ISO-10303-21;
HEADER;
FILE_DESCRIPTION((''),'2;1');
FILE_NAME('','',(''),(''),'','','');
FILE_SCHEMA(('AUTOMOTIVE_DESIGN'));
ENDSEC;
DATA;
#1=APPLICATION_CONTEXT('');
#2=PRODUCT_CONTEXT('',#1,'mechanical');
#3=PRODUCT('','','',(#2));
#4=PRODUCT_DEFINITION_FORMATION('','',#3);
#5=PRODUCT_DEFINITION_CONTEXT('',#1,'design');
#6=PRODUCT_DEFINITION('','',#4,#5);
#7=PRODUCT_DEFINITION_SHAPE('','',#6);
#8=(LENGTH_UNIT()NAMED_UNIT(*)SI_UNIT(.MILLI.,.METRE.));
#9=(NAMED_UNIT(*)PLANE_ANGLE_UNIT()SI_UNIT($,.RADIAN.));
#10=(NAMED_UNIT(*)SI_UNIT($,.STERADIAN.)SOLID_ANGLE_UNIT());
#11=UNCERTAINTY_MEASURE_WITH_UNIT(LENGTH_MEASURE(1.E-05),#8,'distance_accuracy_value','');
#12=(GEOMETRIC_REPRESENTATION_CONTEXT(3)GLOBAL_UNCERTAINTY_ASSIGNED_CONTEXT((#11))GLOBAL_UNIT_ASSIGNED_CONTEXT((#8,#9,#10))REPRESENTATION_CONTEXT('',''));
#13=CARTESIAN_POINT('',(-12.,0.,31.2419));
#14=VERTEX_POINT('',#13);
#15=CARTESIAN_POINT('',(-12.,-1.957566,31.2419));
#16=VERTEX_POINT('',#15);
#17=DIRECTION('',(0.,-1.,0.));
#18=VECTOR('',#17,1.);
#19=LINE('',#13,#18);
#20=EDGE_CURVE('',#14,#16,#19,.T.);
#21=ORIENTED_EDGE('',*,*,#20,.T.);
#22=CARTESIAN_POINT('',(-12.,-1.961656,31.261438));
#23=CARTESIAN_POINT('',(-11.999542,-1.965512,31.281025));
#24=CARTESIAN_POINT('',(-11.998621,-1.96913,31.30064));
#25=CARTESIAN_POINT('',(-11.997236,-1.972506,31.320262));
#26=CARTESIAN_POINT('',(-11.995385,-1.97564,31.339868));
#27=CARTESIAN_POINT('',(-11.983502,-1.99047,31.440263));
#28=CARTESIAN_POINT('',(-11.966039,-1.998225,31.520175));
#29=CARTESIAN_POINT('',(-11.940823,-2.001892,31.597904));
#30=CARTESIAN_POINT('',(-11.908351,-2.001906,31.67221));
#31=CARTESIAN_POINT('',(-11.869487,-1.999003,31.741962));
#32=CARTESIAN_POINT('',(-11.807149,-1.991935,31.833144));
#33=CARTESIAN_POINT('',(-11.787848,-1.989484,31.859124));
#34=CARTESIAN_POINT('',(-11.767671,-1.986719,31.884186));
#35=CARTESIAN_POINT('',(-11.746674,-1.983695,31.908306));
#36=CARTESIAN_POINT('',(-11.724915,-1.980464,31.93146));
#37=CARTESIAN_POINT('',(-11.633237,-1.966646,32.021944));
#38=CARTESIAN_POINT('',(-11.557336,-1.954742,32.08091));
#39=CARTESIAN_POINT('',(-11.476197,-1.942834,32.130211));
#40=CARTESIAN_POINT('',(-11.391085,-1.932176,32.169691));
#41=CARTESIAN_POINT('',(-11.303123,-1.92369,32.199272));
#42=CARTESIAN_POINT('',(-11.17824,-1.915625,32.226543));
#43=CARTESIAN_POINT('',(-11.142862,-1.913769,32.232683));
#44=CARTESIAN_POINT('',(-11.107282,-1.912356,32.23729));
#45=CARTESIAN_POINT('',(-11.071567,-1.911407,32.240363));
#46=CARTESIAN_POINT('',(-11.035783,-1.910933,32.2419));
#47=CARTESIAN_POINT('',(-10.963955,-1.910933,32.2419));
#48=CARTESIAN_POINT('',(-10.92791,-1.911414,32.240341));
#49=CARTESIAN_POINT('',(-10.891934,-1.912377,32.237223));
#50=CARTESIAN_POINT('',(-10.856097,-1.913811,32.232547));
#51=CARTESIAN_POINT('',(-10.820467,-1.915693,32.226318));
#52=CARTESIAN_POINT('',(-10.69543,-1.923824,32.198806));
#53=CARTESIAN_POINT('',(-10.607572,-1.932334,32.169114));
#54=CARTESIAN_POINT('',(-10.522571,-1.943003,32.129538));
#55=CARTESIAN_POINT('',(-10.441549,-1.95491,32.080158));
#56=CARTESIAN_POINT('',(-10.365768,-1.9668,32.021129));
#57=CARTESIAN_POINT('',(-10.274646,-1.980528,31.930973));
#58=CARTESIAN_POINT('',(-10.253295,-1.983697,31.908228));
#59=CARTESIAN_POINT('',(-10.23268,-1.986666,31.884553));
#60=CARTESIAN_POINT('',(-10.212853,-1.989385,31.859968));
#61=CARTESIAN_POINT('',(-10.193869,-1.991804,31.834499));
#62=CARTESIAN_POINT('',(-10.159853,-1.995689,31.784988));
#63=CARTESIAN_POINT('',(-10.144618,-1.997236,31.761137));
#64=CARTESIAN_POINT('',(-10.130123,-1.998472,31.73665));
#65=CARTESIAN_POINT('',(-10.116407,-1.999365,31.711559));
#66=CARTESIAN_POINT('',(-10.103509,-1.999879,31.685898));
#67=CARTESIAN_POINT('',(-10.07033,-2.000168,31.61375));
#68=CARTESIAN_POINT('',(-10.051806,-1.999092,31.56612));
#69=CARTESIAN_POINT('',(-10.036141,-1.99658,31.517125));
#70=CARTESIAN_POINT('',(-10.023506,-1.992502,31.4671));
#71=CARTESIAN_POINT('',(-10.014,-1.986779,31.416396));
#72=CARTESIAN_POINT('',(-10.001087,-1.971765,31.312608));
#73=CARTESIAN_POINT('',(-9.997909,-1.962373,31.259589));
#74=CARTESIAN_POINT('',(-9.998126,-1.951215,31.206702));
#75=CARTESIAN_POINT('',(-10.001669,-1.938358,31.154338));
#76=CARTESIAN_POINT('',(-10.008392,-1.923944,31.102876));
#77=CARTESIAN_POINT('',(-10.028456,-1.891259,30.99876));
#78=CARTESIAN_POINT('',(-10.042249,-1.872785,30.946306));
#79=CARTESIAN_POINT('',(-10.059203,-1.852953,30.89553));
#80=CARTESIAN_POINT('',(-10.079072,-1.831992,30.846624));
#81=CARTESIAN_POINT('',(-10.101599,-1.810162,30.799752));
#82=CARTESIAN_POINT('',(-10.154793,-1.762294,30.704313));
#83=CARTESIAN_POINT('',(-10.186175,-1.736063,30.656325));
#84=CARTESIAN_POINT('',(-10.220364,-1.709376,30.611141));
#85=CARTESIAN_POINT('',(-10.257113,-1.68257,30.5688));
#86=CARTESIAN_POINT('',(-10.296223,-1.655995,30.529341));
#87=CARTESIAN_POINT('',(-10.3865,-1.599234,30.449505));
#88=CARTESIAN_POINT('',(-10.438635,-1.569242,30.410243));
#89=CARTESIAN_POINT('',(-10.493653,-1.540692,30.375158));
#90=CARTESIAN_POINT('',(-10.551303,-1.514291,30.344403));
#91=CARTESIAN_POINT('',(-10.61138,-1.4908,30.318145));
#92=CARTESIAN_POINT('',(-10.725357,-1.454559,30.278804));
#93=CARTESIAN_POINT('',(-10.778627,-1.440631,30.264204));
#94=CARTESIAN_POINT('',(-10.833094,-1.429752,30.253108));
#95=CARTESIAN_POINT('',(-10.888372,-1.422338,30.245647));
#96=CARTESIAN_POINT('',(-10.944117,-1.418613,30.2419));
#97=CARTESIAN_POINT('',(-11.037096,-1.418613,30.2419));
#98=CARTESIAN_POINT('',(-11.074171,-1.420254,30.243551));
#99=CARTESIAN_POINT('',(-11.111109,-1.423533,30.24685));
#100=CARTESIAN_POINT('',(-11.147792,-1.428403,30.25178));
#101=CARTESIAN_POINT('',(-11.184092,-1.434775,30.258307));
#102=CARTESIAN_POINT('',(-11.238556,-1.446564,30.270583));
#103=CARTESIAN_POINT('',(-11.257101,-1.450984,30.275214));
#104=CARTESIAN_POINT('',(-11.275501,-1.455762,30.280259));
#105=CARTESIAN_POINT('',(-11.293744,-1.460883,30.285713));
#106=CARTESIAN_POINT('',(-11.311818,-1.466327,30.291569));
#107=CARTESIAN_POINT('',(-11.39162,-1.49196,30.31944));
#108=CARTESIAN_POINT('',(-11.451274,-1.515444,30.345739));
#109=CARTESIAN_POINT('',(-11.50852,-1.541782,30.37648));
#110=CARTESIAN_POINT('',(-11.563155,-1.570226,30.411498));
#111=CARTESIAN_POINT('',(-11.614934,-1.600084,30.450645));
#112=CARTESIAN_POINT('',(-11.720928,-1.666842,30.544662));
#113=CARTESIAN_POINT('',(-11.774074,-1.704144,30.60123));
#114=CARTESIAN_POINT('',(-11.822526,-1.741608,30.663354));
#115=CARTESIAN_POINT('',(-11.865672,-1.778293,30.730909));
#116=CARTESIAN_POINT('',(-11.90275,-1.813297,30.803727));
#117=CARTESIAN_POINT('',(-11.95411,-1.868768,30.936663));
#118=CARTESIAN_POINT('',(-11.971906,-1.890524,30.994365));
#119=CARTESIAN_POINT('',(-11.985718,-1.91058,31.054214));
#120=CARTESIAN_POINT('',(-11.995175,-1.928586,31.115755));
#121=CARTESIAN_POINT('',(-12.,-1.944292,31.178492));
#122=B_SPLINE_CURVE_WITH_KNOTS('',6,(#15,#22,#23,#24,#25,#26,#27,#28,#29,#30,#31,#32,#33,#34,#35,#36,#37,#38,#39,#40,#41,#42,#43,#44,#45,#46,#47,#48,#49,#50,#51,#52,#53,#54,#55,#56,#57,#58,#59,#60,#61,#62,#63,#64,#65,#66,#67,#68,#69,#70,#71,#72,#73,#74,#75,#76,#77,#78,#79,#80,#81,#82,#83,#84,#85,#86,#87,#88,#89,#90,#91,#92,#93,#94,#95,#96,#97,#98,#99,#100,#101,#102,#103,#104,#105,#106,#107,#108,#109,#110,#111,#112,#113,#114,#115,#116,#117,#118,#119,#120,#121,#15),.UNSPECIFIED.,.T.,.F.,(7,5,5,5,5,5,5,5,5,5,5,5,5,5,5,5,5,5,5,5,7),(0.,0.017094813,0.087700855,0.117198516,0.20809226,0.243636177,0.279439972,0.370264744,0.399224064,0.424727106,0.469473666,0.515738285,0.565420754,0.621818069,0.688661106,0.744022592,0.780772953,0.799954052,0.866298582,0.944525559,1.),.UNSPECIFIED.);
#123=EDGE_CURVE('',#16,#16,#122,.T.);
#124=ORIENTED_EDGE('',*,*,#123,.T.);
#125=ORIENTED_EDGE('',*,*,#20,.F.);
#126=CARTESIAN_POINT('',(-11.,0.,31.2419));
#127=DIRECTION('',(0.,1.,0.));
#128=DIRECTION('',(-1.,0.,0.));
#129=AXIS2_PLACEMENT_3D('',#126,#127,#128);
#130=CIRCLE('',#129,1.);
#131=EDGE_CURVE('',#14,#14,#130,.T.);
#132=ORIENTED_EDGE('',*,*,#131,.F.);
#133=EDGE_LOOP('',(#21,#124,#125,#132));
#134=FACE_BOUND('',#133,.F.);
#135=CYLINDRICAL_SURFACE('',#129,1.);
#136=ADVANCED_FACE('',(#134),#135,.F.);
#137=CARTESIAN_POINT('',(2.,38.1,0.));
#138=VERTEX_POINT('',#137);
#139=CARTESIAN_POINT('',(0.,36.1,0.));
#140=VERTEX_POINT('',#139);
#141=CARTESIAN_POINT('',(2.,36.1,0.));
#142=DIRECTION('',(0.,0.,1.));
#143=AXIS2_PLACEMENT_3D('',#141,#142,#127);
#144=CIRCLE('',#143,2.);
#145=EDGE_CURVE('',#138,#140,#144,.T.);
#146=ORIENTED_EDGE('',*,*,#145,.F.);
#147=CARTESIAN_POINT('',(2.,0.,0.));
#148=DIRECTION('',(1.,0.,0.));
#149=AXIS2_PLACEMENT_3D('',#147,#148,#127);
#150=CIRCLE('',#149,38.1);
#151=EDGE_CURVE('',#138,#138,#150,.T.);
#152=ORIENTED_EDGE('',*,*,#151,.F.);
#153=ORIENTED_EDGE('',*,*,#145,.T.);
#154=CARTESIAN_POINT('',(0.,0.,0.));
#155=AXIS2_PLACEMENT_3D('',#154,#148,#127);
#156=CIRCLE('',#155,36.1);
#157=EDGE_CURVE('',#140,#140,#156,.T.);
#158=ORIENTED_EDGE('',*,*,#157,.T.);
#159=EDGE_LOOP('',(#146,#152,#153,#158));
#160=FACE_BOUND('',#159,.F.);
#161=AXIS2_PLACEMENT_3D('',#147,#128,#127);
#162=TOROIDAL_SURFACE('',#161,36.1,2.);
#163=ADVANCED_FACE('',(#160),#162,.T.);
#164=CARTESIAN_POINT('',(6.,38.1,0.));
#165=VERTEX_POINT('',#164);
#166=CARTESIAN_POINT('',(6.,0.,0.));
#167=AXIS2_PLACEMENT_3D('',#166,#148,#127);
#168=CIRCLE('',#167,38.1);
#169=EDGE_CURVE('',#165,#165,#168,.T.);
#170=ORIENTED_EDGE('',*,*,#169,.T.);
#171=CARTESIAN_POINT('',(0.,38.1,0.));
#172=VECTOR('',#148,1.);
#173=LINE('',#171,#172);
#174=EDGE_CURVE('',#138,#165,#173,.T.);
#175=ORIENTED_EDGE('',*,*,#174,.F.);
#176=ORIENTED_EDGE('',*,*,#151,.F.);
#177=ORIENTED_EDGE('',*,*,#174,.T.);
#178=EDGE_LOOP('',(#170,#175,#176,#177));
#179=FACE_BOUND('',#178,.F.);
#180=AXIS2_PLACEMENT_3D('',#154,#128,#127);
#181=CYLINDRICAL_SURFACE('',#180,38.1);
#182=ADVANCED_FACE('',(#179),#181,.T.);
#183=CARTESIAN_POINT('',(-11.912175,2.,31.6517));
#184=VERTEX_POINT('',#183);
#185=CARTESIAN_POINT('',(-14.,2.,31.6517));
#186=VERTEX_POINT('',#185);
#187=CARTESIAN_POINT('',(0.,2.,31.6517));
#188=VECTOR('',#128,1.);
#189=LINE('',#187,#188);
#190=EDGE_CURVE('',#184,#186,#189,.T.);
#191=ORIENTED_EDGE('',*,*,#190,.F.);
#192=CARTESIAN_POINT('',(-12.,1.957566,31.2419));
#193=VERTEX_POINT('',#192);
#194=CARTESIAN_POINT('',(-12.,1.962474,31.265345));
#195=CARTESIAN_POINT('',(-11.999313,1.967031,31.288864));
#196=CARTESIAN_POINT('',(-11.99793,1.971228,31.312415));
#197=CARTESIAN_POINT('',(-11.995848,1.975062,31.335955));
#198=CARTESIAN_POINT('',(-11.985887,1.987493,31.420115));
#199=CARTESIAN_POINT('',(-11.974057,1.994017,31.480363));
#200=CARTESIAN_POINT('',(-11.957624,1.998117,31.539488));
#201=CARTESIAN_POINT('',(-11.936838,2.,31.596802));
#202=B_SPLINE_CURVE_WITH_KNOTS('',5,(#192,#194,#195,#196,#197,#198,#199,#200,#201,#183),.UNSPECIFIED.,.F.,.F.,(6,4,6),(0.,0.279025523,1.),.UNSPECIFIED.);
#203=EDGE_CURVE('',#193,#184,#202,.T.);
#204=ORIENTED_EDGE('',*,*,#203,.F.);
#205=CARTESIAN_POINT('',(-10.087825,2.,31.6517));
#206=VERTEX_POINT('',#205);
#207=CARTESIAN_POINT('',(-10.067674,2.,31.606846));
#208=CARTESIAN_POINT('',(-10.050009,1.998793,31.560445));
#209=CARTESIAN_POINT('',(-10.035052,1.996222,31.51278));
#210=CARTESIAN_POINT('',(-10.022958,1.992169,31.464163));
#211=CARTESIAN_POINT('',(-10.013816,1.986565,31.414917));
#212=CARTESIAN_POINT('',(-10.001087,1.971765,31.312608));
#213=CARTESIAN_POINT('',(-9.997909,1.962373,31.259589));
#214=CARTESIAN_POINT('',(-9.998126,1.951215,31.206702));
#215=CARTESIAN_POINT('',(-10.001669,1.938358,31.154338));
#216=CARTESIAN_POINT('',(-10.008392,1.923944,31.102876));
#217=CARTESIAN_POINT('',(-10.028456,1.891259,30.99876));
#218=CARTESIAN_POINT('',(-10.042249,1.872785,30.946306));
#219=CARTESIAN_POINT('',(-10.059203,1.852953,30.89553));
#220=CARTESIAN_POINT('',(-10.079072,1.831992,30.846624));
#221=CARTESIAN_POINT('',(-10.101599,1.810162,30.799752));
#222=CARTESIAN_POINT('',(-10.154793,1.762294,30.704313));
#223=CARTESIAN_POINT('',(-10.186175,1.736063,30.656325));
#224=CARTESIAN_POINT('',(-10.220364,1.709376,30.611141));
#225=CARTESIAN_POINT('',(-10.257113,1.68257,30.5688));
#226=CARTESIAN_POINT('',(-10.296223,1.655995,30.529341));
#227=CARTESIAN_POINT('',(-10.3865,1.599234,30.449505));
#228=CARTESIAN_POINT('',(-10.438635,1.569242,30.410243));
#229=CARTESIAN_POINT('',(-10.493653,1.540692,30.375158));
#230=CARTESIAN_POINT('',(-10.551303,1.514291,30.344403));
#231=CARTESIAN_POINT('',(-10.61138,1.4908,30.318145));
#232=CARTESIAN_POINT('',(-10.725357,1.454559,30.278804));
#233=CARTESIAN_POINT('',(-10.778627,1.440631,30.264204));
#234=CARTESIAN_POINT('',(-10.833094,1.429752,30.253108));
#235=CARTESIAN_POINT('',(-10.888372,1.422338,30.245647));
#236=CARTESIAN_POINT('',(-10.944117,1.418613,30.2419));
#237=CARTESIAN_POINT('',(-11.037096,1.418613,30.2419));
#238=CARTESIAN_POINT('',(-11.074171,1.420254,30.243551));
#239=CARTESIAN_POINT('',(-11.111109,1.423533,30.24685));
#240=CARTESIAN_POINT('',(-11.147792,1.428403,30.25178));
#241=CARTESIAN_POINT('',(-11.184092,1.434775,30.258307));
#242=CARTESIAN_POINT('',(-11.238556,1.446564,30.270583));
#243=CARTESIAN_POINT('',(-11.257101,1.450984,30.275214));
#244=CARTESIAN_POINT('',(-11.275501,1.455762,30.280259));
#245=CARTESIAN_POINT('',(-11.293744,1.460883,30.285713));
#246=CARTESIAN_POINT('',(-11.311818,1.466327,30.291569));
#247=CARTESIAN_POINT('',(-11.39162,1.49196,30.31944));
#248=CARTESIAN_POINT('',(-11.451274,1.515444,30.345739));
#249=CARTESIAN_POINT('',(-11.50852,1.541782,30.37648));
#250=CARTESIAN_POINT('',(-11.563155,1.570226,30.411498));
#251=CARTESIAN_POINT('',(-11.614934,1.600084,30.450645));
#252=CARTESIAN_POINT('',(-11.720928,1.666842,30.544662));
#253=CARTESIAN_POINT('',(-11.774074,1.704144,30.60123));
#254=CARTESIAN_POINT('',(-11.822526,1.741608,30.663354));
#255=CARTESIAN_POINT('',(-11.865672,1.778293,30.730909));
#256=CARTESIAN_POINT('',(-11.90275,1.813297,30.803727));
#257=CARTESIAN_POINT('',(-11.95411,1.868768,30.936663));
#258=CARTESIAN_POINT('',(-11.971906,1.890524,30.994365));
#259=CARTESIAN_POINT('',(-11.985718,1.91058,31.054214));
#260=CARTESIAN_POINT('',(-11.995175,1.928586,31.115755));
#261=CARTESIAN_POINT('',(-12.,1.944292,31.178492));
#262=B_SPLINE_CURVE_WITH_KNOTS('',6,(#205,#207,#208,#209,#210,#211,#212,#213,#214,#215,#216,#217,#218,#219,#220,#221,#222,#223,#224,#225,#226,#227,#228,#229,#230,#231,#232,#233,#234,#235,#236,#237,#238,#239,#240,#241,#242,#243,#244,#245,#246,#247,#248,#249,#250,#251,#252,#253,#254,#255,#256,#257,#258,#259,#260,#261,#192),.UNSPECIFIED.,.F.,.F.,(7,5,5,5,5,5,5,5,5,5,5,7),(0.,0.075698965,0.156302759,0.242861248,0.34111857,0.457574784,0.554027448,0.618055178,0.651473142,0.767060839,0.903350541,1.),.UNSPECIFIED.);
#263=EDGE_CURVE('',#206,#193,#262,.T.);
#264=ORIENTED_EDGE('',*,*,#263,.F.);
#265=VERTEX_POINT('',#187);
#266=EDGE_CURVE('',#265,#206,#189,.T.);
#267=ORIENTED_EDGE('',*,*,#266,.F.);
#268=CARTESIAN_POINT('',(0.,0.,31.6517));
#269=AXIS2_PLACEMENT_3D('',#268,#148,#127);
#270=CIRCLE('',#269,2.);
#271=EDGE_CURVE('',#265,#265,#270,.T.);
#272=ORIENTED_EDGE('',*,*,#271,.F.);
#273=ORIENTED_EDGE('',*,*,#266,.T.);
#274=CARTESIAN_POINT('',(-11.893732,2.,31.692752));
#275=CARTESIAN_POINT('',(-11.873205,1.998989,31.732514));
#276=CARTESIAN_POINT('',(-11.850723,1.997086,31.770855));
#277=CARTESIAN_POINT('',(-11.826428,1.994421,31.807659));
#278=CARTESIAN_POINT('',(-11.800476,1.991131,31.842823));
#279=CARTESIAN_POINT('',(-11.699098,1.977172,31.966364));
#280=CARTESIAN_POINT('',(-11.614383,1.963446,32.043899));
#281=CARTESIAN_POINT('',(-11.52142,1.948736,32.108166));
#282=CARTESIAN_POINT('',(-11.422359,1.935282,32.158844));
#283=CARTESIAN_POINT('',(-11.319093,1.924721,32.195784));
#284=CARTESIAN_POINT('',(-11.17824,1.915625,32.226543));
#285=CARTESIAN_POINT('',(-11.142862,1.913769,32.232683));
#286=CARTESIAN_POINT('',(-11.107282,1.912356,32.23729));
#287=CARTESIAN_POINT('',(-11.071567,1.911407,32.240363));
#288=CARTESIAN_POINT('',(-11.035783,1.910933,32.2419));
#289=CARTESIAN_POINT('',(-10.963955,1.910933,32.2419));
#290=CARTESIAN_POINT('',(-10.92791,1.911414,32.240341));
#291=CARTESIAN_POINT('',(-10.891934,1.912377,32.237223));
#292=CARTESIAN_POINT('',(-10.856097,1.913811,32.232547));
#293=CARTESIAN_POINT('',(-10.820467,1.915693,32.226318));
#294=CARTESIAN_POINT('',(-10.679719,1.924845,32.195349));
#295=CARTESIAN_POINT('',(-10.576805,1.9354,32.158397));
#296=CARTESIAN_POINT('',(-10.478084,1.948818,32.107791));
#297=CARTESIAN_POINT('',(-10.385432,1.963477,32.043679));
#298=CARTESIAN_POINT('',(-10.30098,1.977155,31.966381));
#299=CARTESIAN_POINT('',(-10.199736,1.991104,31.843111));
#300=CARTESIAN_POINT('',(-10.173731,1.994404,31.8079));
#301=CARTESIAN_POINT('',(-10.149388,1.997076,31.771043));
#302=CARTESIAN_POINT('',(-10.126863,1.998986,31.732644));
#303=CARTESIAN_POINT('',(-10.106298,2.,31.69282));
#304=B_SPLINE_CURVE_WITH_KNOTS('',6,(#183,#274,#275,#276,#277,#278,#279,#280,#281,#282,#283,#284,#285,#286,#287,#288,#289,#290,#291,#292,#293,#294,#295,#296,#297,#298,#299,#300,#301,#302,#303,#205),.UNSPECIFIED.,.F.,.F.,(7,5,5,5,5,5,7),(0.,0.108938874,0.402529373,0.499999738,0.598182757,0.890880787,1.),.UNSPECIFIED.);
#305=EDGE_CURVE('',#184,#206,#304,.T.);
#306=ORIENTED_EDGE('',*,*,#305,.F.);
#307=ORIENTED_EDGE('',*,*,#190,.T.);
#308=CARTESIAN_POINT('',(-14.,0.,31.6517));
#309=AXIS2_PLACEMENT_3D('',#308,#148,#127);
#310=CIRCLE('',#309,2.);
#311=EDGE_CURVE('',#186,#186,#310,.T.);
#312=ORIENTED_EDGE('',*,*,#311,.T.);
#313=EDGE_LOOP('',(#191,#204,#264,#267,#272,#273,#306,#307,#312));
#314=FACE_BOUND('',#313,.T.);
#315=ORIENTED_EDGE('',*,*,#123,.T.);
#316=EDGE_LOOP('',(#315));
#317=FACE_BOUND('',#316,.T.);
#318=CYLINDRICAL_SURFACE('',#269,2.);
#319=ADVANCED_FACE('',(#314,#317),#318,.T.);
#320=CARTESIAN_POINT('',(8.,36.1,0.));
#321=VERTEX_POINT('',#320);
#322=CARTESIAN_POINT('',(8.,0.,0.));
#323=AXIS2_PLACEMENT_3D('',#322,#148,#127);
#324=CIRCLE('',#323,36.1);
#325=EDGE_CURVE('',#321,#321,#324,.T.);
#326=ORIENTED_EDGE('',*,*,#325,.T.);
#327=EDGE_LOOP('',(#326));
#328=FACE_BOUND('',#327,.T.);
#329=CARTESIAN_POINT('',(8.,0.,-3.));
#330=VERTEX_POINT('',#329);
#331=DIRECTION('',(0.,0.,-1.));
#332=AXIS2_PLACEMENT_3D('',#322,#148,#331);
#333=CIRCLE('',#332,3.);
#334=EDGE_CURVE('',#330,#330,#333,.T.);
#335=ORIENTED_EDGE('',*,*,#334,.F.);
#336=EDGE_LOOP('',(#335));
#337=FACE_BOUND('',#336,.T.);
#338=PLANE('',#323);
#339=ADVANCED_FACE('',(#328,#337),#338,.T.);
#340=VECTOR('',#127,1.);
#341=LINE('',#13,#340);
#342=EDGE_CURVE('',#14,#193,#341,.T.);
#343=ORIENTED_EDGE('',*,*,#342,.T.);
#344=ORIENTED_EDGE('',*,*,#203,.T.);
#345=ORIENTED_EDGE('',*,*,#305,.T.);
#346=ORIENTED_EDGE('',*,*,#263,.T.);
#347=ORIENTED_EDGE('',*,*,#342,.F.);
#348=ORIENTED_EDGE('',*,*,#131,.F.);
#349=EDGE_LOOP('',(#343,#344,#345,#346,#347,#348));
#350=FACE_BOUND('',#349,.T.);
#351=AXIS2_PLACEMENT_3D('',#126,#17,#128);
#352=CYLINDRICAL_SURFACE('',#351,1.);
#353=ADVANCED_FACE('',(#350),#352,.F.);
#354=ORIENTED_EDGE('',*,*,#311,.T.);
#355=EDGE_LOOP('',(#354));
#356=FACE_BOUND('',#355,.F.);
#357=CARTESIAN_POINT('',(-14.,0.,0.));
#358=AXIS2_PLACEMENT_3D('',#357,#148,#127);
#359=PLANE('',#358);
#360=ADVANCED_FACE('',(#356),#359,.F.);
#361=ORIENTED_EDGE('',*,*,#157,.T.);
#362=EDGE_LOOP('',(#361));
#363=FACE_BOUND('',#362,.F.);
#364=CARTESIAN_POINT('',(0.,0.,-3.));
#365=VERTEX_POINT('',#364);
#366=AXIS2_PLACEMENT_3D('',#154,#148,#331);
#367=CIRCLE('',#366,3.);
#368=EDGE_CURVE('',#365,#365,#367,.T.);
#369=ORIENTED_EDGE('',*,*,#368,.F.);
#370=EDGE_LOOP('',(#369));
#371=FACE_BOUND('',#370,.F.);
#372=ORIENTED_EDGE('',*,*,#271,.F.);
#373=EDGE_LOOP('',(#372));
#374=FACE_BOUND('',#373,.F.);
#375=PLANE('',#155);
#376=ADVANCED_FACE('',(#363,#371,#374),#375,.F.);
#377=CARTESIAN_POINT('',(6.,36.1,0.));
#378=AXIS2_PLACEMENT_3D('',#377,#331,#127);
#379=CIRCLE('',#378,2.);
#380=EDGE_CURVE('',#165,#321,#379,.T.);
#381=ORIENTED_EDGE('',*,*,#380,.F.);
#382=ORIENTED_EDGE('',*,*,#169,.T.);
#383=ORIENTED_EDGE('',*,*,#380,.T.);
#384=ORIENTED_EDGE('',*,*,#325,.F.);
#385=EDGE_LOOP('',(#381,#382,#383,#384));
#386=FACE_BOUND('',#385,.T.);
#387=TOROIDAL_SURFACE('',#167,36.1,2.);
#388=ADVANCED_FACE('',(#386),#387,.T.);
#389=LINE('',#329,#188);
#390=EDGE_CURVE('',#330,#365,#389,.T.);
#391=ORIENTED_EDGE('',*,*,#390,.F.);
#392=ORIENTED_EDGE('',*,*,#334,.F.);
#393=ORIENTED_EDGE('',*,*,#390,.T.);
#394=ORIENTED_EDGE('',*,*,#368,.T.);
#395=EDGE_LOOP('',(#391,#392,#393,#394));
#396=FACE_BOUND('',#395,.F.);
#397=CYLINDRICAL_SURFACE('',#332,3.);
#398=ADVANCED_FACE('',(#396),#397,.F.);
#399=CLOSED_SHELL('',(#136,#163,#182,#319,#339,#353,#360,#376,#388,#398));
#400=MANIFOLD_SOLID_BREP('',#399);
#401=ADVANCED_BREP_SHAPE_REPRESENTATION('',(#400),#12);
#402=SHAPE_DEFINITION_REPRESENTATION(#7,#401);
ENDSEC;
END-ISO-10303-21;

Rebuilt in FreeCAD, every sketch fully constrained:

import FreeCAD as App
import Part
import Sketcher

V = App.Vector
Q = App.Units.Quantity


def edges_at(feature, points):
    """Names of the edges that pass closest to the given points."""
    edges = feature.Shape.Edges
    near = lambda p: min(range(len(edges)), key=lambda i: edges[i].distToShape(Part.Vertex(*p))[0])
    return sorted({f"Edge{near(p) + 1}" for p in points})

doc = App.newDocument("Part")
body = doc.addObject("PartDesign::Body", "Body")

# Sketch on YZ plane
sketch1 = body.newObject("Sketcher::SketchObject", "Sketch")
sketch1.AttachmentSupport = (doc.getObject("YZ_Plane"), [""])
sketch1.MapMode = "FlatFace"
sketch1.addGeometry(Part.Circle(V(0, 0, 0), V(0, 0, 1), 38), False)
sketch1.addConstraint(Sketcher.Constraint("Coincident", 0, 3, -1, 1))
sketch1.addConstraint(Sketcher.Constraint("Diameter", 0, Q("76.2 mm")))
pad1 = body.newObject("PartDesign::Pad", "Pad")
pad1.Profile = sketch1
pad1.Length = 8

# Sketch on YZ plane
sketch2 = body.newObject("Sketcher::SketchObject", "Sketch001")
sketch2.AttachmentSupport = (doc.getObject("YZ_Plane"), [""])
sketch2.MapMode = "FlatFace"
sketch2.AttachmentOffset = App.Placement(V(0, 0, 8), App.Rotation())
sketch2.addGeometry(Part.Circle(V(0, 0, 0), V(0, 0, 1), 3), False)
sketch2.addConstraint(Sketcher.Constraint("Coincident", 0, 3, -1, 1))
sketch2.addConstraint(Sketcher.Constraint("Diameter", 0, Q("6 mm")))
pocket1 = body.newObject("PartDesign::Pocket", "Pocket")
pocket1.Profile = sketch2
pocket1.Type = "ThroughAll"
doc.recompute()

fillet = body.newObject("PartDesign::Fillet", "Fillet")
fillet.Base = (pocket1, edges_at(pocket1, [(8, -38.1, 0), (0, -38.1, 0)]))
fillet.Radius = 2

# Sketch on YZ plane
sketch3 = body.newObject("Sketcher::SketchObject", "Sketch002")
sketch3.AttachmentSupport = (doc.getObject("YZ_Plane"), [""])
sketch3.MapMode = "FlatFace"
sketch3.addGeometry(Part.Circle(V(0, 31.7, 0), V(0, 0, 1), 2), False)
sketch3.addConstraint(Sketcher.Constraint("PointOnObject", 0, 3, -2))
sketch3.addConstraint(Sketcher.Constraint("Diameter", 0, Q("4 mm")))
sketch3.addConstraint(Sketcher.Constraint("DistanceY", -1, 1, 0, 3, Q("31.6517 mm")))
pad2 = body.newObject("PartDesign::Pad", "Pad001")
pad2.Profile = sketch3
pad2.Length = 14
pad2.Reversed = True

# Sketch on XZ plane
sketch4 = body.newObject("Sketcher::SketchObject", "Sketch003")
sketch4.AttachmentSupport = (doc.getObject("XZ_Plane"), [""])
sketch4.MapMode = "FlatFace"
sketch4.addGeometry(Part.Circle(V(-11, 31.2, 0), V(0, 0, 1), 1), False)
sketch4.addConstraint(Sketcher.Constraint("Diameter", 0, Q("2 mm")))
sketch4.addConstraint(Sketcher.Constraint("DistanceX", 0, 3, -1, 1, Q("11 mm")))
sketch4.addConstraint(Sketcher.Constraint("DistanceY", -1, 1, 0, 3, Q("31.242 mm")))
pocket2 = body.newObject("PartDesign::Pocket", "Pocket001")
pocket2.Profile = sketch4
pocket2.Length = 14
pocket2.Midplane = True

doc.recompute()
